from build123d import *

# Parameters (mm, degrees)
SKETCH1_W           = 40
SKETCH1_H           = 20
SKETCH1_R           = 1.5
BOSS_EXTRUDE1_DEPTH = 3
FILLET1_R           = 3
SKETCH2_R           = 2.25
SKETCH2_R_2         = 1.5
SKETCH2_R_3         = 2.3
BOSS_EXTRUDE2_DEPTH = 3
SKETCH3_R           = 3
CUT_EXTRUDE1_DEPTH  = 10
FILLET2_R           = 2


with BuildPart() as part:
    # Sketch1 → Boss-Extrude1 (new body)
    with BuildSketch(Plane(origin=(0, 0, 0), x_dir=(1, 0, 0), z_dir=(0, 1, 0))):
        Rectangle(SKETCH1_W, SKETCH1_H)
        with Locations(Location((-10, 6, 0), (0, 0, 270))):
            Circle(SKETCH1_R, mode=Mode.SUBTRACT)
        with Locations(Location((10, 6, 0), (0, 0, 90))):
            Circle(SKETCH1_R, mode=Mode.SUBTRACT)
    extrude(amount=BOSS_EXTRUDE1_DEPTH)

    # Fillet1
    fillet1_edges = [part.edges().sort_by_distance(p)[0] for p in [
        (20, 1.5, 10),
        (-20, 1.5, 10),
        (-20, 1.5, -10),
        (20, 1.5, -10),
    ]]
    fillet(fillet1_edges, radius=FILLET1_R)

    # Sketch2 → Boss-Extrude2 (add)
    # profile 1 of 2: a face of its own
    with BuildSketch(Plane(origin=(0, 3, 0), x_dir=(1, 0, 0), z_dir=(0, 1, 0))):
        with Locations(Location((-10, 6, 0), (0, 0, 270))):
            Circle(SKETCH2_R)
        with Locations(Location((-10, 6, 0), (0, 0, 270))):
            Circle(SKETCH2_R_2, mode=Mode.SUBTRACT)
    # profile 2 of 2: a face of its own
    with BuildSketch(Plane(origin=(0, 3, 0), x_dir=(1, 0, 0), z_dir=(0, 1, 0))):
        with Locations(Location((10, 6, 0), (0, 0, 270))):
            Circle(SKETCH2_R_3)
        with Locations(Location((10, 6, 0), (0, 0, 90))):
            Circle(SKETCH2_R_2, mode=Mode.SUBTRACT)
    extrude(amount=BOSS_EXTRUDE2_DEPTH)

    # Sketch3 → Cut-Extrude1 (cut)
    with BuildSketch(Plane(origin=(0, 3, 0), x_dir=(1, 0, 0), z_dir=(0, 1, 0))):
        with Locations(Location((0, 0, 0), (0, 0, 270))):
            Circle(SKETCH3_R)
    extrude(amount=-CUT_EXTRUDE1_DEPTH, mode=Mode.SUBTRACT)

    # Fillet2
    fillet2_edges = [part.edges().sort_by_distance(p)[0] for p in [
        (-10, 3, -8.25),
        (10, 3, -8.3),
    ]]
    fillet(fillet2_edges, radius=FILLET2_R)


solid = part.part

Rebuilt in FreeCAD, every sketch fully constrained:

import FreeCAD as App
import Part
import Sketcher


def edges_at(feature, points):
    """Names of the edges that pass closest to the given points."""
    edges = feature.Shape.Edges
    near = lambda p: min(range(len(edges)), key=lambda i: edges[i].distToShape(Part.Vertex(*p))[0])
    return sorted({f"Edge{near(p) + 1}" for p in points})


def add_polygon(sketch, points):
    """Adds a closed chain of lines whose ends are joined by coincident constraints."""
    first, n = sketch.GeometryCount, len(points)
    for a, b in zip(points, points[1:] + points[:1]):
        sketch.addGeometry(Part.LineSegment(App.Vector(*a, 0), App.Vector(*b, 0)), False)
    for i in range(n):
        sketch.addConstraint(Sketcher.Constraint("Coincident", first + i, 2, first + (i + 1) % n, 1))

doc = App.newDocument("Part")
body = doc.addObject("PartDesign::Body", "Body")

sketch1 = body.newObject("Sketcher::SketchObject", "Sketch")
sketch1.AttachmentSupport = (doc.getObject("XZ_Plane"), [""])
sketch1.MapMode = "FlatFace"
add_polygon(sketch1, [(-20, -10), (-20, 10), (20, 10), (20, -10)])
sketch1.addGeometry(Part.Circle(App.Vector(-10, -6, 0), App.Vector(0, 0, 1), 1.5), False)
sketch1.addGeometry(Part.Circle(App.Vector(10, -6, 0), App.Vector(0, 0, 1), 1.5), False)
sketch1.addConstraint([
    Sketcher.Constraint("Vertical", 0),
    Sketcher.Constraint("Horizontal", 1),
    Sketcher.Constraint("Vertical", 2),
    Sketcher.Constraint("Horizontal", 3),
    Sketcher.Constraint("Equal", 4, 5),
    Sketcher.Constraint("Symmetric", 0, 2, 2, 2, -1, 1),
    Sketcher.Constraint("Symmetric", 4, 3, 5, 3, -2),
    Sketcher.Constraint("Diameter", 4, 3.0),
    Sketcher.Constraint("DistanceX", 1, 1, 1, 2, 40.0),
    Sketcher.Constraint("DistanceY", 0, 1, 0, 2, 20.0),
    Sketcher.Constraint("DistanceX", 4, 3, -1, 1, 10.0),
    Sketcher.Constraint("DistanceY", 4, 3, -1, 1, 6.0),
])
pad1 = body.newObject("PartDesign::Pad", "Pad")
pad1.Profile = sketch1
pad1.Length = 3
pad1.Reversed = True
doc.recompute()

fillet = body.newObject("PartDesign::Fillet", "Fillet")
fillet.Base = (pad1, edges_at(pad1, [
    (20, 1.5, 10),
    (-20, 1.5, 10),
    (-20, 1.5, -10),
    (20, 1.5, -10),
]))
fillet.Radius = 3

sketch2 = body.newObject("Sketcher::SketchObject", "Sketch001")
sketch2.AttachmentSupport = (doc.getObject("XZ_Plane"), [""])
sketch2.MapMode = "FlatFace"
sketch2.AttachmentOffset = App.Placement(App.Vector(0, 0, -3), App.Rotation())
sketch2.addGeometry([
    Part.Circle(App.Vector(-10, -6, 0), App.Vector(0, 0, 1), 2.2),
    Part.Circle(App.Vector(-10, -6, 0), App.Vector(0, 0, 1), 1.5),
    Part.Circle(App.Vector(10, -6, 0), App.Vector(0, 0, 1), 2.3),
    Part.Circle(App.Vector(10, -6, 0), App.Vector(0, 0, 1), 1.5),
], False)
sketch2.addConstraint([
    Sketcher.Constraint("Coincident", 1, 3, 0, 3),
    Sketcher.Constraint("Coincident", 3, 3, 2, 3),
    Sketcher.Constraint("Equal", 1, 3),
    Sketcher.Constraint("Symmetric", 0, 3, 2, 3, -2),
    Sketcher.Constraint("Diameter", 1, 3.0),
    Sketcher.Constraint("Diameter", 0, 4.5),
    Sketcher.Constraint("Diameter", 2, 4.6),
    Sketcher.Constraint("DistanceX", 0, 3, -1, 1, 10.0),
    Sketcher.Constraint("DistanceY", 0, 3, -1, 1, 6.0),
])
pad2 = body.newObject("PartDesign::Pad", "Pad001")
pad2.Profile = sketch2
pad2.Length = 3
pad2.Reversed = True

sketch3 = body.newObject("Sketcher::SketchObject", "Sketch002")
sketch3.AttachmentSupport = (doc.getObject("XZ_Plane"), [""])
sketch3.MapMode = "FlatFace"
sketch3.AttachmentOffset = App.Placement(App.Vector(0, 0, -3), App.Rotation())
sketch3.addGeometry(Part.Circle(App.Vector(0, 0, 0), App.Vector(0, 0, 1), 3), False)
sketch3.addConstraint([
    Sketcher.Constraint("Coincident", 0, 3, -1, 1),
    Sketcher.Constraint("Diameter", 0, 6.0),
])
pocket1 = body.newObject("PartDesign::Pocket", "Pocket")
pocket1.Profile = sketch3
pocket1.Length = 10
pocket1.Reversed = True
doc.recompute()

fillet2 = body.newObject("PartDesign::Fillet", "Fillet001")
fillet2.Base = (pocket1, edges_at(pocket1, [(-10, 3, -8.25), (10, 3, -8.3)]))
fillet2.Radius = 2

doc.recompute()
